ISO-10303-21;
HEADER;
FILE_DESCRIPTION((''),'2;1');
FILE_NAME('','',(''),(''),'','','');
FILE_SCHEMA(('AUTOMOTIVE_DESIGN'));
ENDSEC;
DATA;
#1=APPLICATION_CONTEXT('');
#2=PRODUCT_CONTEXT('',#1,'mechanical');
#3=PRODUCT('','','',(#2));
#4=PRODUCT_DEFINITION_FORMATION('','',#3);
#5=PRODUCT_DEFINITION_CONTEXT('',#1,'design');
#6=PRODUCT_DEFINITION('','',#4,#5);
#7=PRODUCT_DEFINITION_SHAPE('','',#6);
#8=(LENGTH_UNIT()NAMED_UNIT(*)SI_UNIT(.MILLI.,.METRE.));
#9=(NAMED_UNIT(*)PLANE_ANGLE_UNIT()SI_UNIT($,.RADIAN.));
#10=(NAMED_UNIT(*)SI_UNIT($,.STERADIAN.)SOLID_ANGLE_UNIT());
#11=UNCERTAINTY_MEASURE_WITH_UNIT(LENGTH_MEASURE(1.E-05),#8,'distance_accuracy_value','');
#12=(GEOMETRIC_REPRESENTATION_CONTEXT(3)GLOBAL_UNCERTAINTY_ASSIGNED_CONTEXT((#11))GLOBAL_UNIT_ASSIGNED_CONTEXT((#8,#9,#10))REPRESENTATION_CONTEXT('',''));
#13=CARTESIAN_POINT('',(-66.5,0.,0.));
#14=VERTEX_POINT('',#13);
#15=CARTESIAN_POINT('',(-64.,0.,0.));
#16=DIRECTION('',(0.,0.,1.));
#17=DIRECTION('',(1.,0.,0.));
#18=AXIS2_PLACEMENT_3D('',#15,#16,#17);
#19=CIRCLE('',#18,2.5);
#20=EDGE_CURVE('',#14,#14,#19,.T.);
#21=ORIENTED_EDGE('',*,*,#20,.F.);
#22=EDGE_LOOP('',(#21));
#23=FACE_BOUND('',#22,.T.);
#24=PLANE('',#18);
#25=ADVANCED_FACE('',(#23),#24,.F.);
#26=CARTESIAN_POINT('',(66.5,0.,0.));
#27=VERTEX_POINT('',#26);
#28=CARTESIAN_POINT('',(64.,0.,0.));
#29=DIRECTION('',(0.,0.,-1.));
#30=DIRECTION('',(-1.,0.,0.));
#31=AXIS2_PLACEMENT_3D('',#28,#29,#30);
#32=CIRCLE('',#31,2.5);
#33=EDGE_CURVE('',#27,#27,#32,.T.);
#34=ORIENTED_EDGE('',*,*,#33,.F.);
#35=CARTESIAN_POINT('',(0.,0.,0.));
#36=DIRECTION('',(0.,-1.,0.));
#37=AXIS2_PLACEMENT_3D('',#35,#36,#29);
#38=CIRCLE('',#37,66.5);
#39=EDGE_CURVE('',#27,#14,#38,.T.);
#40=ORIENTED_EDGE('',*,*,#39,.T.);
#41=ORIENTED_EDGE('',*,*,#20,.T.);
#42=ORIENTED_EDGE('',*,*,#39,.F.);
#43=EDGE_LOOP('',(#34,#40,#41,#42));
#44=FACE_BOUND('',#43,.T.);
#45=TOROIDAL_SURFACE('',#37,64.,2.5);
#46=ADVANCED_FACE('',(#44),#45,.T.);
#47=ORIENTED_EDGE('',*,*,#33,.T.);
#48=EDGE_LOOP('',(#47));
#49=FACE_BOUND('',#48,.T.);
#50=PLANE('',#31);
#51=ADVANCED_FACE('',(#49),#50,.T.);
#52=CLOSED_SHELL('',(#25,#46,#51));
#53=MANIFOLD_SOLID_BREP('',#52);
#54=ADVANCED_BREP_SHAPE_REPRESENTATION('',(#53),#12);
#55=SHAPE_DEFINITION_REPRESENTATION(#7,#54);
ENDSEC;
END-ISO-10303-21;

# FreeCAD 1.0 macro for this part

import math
import FreeCAD as App
import Part
import Sketcher
Q = App.Units.Quantity

doc = App.newDocument("Part")
body = doc.addObject("PartDesign::Body", "Body")

sketch1 = doc.addObject("Sketcher::SketchObject", "Sketch")
body.addObject(sketch1)
sketch1.AttachmentSupport = (doc.XY_Plane, [""])
sketch1.MapMode = "FlatFace"
sketch1.addGeometry(Part.Circle(App.Vector(-64, 0, 0), App.Vector(0, 0, 1), 2.5), False)
sketch1.addConstraint([
    Sketcher.Constraint("PointOnObject", 0, 3, -1),
    Sketcher.Constraint("Diameter", 0, Q("5 mm")),
    Sketcher.Constraint("DistanceX", 0, 3, -1, 1, Q("64 mm")),
])

sketch2 = doc.addObject("Sketcher::SketchObject", "Sketch001")
body.addObject(sketch2)
sketch2.AttachmentSupport = (doc.XZ_Plane, [""])
sketch2.MapMode = "FlatFace"
sketch2.addGeometry(Part.ArcOfCircle(Part.Circle(App.Vector(0, 0, 0), App.Vector(0, 0, 1), 64), math.radians(0), math.radians(180)), False)
sketch2.addConstraint([
    Sketcher.Constraint("Coincident", 0, 3, -1, 1),
    Sketcher.Constraint("PointOnObject", 0, 1, -1),
    Sketcher.Constraint("PointOnObject", 0, 2, -1),
    Sketcher.Constraint("Radius", 0, Q("64 mm")),
])
doc.recompute()

additivepipe = doc.addObject("PartDesign::AdditivePipe", "AdditivePipe")
body.addObject(additivepipe)
additivepipe.Profile = sketch1
additivepipe.Spine = (sketch2, ["Edge1"])

doc.recompute()
